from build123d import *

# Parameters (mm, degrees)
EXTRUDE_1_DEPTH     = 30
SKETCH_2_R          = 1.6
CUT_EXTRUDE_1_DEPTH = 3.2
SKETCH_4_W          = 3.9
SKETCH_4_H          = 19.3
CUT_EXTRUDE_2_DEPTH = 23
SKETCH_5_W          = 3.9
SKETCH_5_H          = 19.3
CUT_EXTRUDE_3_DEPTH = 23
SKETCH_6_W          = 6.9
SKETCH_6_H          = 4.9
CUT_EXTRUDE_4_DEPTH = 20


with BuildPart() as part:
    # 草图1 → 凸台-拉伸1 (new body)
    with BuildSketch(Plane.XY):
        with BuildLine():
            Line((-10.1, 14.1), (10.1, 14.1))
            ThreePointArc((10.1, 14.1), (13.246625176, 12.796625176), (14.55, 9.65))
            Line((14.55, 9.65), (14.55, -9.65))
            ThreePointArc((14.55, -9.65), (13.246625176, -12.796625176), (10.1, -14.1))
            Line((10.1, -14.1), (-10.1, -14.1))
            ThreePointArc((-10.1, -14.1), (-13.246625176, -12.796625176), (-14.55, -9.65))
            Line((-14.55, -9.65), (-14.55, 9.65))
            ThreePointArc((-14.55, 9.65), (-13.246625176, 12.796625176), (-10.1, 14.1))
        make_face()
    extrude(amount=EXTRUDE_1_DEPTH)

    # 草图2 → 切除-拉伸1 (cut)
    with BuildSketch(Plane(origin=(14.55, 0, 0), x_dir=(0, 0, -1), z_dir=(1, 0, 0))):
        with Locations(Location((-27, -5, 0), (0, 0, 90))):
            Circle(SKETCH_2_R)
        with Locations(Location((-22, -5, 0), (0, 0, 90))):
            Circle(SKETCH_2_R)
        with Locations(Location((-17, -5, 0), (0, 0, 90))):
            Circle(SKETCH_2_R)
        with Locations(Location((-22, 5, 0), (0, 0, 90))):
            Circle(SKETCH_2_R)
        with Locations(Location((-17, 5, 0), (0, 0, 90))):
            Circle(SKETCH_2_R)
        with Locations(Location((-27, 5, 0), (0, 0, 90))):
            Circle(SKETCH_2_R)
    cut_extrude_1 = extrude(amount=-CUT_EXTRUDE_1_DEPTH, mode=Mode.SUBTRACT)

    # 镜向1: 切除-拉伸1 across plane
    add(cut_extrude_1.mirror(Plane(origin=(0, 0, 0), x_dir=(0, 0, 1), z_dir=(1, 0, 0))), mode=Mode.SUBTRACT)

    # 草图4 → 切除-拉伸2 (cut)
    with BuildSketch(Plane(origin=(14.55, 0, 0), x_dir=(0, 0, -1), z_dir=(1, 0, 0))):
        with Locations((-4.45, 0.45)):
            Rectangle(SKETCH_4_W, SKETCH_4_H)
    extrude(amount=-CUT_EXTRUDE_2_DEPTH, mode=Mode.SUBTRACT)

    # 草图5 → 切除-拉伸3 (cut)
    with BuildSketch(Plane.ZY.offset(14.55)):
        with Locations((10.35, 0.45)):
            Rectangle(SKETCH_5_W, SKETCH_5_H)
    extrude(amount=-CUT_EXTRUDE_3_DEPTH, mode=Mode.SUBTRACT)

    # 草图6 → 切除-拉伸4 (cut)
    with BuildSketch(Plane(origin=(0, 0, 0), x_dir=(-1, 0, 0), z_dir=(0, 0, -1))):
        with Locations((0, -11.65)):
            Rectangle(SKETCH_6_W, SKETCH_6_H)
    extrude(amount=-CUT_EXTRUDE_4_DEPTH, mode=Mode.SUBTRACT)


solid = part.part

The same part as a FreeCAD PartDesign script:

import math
import FreeCAD as App
import Part
import Sketcher
Q = App.Units.Quantity

doc = App.newDocument("Part")
body = doc.addObject("PartDesign::Body", "Body")

sketch1 = body.newObject("Sketcher::SketchObject", "Sketch")
sketch1.AttachmentSupport = (doc.getObject("XY_Plane"), [""])
sketch1.MapMode = "FlatFace"
sketch1.addGeometry(Part.LineSegment(App.Vector(10.1, 14.1, 0), App.Vector(-10.1, 14.1, 0)), False)
sketch1.addGeometry(Part.ArcOfCircle(Part.Circle(App.Vector(-10.1, 9.6, 0), App.Vector(0, 0, 1), 4.5), math.radians(90), math.radians(180)), False)
sketch1.addGeometry(Part.LineSegment(App.Vector(-14.6, 9.7, 0), App.Vector(-14.6, -9.7, 0)), False)
sketch1.addGeometry(Part.ArcOfCircle(Part.Circle(App.Vector(-10.1, -9.6, 0), App.Vector(0, 0, 1), 4.5), math.radians(-180), math.radians(-90)), False)
sketch1.addGeometry(Part.LineSegment(App.Vector(-10.1, -14.1, 0), App.Vector(10.1, -14.1, 0)), False)
sketch1.addGeometry(Part.ArcOfCircle(Part.Circle(App.Vector(10.1, -9.6, 0), App.Vector(0, 0, 1), 4.5), math.radians(-90), math.radians(0)), False)
sketch1.addGeometry(Part.LineSegment(App.Vector(14.6, -9.7, 0), App.Vector(14.6, 9.7, 0)), False)
sketch1.addGeometry(Part.ArcOfCircle(Part.Circle(App.Vector(10.1, 9.6, 0), App.Vector(0, 0, 1), 4.5), math.radians(0), math.radians(90)), False)
sketch1.addConstraint(Sketcher.Constraint("Tangent", 0, 2, 1, 1))
sketch1.addConstraint(Sketcher.Constraint("Tangent", 1, 2, 2, 1))
sketch1.addConstraint(Sketcher.Constraint("Tangent", 2, 2, 3, 1))
sketch1.addConstraint(Sketcher.Constraint("Tangent", 3, 2, 4, 1))
sketch1.addConstraint(Sketcher.Constraint("Tangent", 4, 2, 5, 1))
sketch1.addConstraint(Sketcher.Constraint("Tangent", 5, 2, 6, 1))
sketch1.addConstraint(Sketcher.Constraint("Tangent", 6, 2, 7, 1))
sketch1.addConstraint(Sketcher.Constraint("Tangent", 7, 2, 0, 1))
sketch1.addConstraint(Sketcher.Constraint("Horizontal", 0))
sketch1.addConstraint(Sketcher.Constraint("Vertical", 2))
sketch1.addConstraint(Sketcher.Constraint("Horizontal", 4))
sketch1.addConstraint(Sketcher.Constraint("Vertical", 6))
sketch1.addConstraint(Sketcher.Constraint("Equal", 1, 3))
sketch1.addConstraint(Sketcher.Constraint("Equal", 3, 5))
sketch1.addConstraint(Sketcher.Constraint("Equal", 5, 7))
sketch1.addConstraint(Sketcher.Constraint("Symmetric", 1, 3, 5, 3, -1, 1))
sketch1.addConstraint(Sketcher.Constraint("Radius", 1, Q("4.45 mm")))
sketch1.addConstraint(Sketcher.Constraint("DistanceX", 0, 2, 0, 1, Q("20.2 mm")))
sketch1.addConstraint(Sketcher.Constraint("DistanceY", 2, 2, 2, 1, Q("19.3 mm")))
pad1 = body.newObject("PartDesign::Pad", "Pad")
pad1.Profile = sketch1
pad1.Length = 30

sketch2 = body.newObject("Sketcher::SketchObject", "Sketch001")
sketch2.AttachmentSupport = (doc.getObject("YZ_Plane"), [""])
sketch2.MapMode = "FlatFace"
sketch2.AttachmentOffset = App.Placement(App.Vector(0, 0, 14.55), App.Rotation())
sketch2.addGeometry(Part.Circle(App.Vector(-5, 27, 0), App.Vector(0, 0, 1), 1.6), False)
sketch2.addGeometry(Part.Circle(App.Vector(-5, 22, 0), App.Vector(0, 0, 1), 1.6), False)
sketch2.addGeometry(Part.Circle(App.Vector(-5, 17, 0), App.Vector(0, 0, 1), 1.6), False)
sketch2.addGeometry(Part.Circle(App.Vector(5, 22, 0), App.Vector(0, 0, 1), 1.6), False)
sketch2.addGeometry(Part.Circle(App.Vector(5, 17, 0), App.Vector(0, 0, 1), 1.6), False)
sketch2.addGeometry(Part.Circle(App.Vector(5, 27, 0), App.Vector(0, 0, 1), 1.6), False)
sketch2.addConstraint(Sketcher.Constraint("Equal", 0, 1))
sketch2.addConstraint(Sketcher.Constraint("Equal", 1, 2))
sketch2.addConstraint(Sketcher.Constraint("Equal", 2, 3))
sketch2.addConstraint(Sketcher.Constraint("Equal", 3, 4))
sketch2.addConstraint(Sketcher.Constraint("Equal", 4, 5))
sketch2.addConstraint(Sketcher.Constraint("Symmetric", 1, 3, 3, 3, -2))
sketch2.addConstraint(Sketcher.Constraint("Symmetric", 2, 3, 4, 3, -2))
sketch2.addConstraint(Sketcher.Constraint("Symmetric", 0, 3, 5, 3, -2))
sketch2.addConstraint(Sketcher.Constraint("Vertical", 0, 3, 1, 3))
sketch2.addConstraint(Sketcher.Constraint("Vertical", 1, 3, 2, 3))
sketch2.addConstraint(Sketcher.Constraint("Diameter", 0, Q("3.2 mm")))
sketch2.addConstraint(Sketcher.Constraint("DistanceX", 0, 3, -1, 1, Q("5 mm")))
sketch2.addConstraint(Sketcher.Constraint("DistanceY", -1, 1, 0, 3, Q("27 mm")))
sketch2.addConstraint(Sketcher.Constraint("DistanceY", -1, 1, 1, 3, Q("22 mm")))
sketch2.addConstraint(Sketcher.Constraint("DistanceY", -1, 1, 2, 3, Q("17 mm")))
pocket1 = body.newObject("PartDesign::Pocket", "Pocket")
pocket1.Profile = sketch2
pocket1.Length = 3.2
doc.recompute()

mirrored = body.newObject("PartDesign::Mirrored", "Mirrored")
mirrored.Originals = [pocket1]
mirrored.MirrorPlane = (doc.getObject("YZ_Plane"), [""])
body.Tip = mirrored

sketch3 = body.newObject("Sketcher::SketchObject", "Sketch002")
sketch3.AttachmentSupport = (doc.getObject("YZ_Plane"), [""])
sketch3.MapMode = "FlatFace"
sketch3.AttachmentOffset = App.Placement(App.Vector(0, 0, 14.55), App.Rotation())
sketch3.addGeometry(Part.LineSegment(App.Vector(10.1, 6.4, 0), App.Vector(-9.2, 6.4, 0)), False)
sketch3.addGeometry(Part.LineSegment(App.Vector(-9.2, 6.4, 0), App.Vector(-9.2, 2.5, 0)), False)
sketch3.addGeometry(Part.LineSegment(App.Vector(-9.2, 2.5, 0), App.Vector(10.1, 2.5, 0)), False)
sketch3.addGeometry(Part.LineSegment(App.Vector(10.1, 2.5, 0), App.Vector(10.1, 6.4, 0)), False)
sketch3.addConstraint(Sketcher.Constraint("Coincident", 0, 2, 1, 1))
sketch3.addConstraint(Sketcher.Constraint("Coincident", 1, 2, 2, 1))
sketch3.addConstraint(Sketcher.Constraint("Coincident", 2, 2, 3, 1))
sketch3.addConstraint(Sketcher.Constraint("Coincident", 3, 2, 0, 1))
sketch3.addConstraint(Sketcher.Constraint("Horizontal", 0))
sketch3.addConstraint(Sketcher.Constraint("Vertical", 1))
sketch3.addConstraint(Sketcher.Constraint("Horizontal", 2))
sketch3.addConstraint(Sketcher.Constraint("Vertical", 3))
sketch3.addConstraint(Sketcher.Constraint("DistanceX", 0, 2, 0, 1, Q("19.3 mm")))
sketch3.addConstraint(Sketcher.Constraint("DistanceY", 1, 2, 1, 1, Q("3.9 mm")))
sketch3.addConstraint(Sketcher.Constraint("DistanceX", 0, 2, -1, 1, Q("9.2 mm")))
sketch3.addConstraint(Sketcher.Constraint("DistanceY", -1, 1, 0, 2, Q("6.4 mm")))
pocket2 = body.newObject("PartDesign::Pocket", "Pocket001")
pocket2.Profile = sketch3
pocket2.Length = 23

sketch4 = body.newObject("Sketcher::SketchObject", "Sketch003")
sketch4.AttachmentSupport = (doc.getObject("YZ_Plane"), [""])
sketch4.MapMode = "FlatFace"
sketch4.AttachmentOffset = App.Placement(App.Vector(0, 0, -14.55), App.Rotation())
sketch4.addGeometry(Part.LineSegment(App.Vector(10.1, 8.4, 0), App.Vector(-9.2, 8.4, 0)), False)
sketch4.addGeometry(Part.LineSegment(App.Vector(-9.2, 8.4, 0), App.Vector(-9.2, 12.3, 0)), False)
sketch4.addGeometry(Part.LineSegment(App.Vector(-9.2, 12.3, 0), App.Vector(10.1, 12.3, 0)), False)
sketch4.addGeometry(Part.LineSegment(App.Vector(10.1, 12.3, 0), App.Vector(10.1, 8.4, 0)), False)
sketch4.addConstraint(Sketcher.Constraint("Coincident", 0, 2, 1, 1))
sketch4.addConstraint(Sketcher.Constraint("Coincident", 1, 2, 2, 1))
sketch4.addConstraint(Sketcher.Constraint("Coincident", 2, 2, 3, 1))
sketch4.addConstraint(Sketcher.Constraint("Coincident", 3, 2, 0, 1))
sketch4.addConstraint(Sketcher.Constraint("Horizontal", 0))
sketch4.addConstraint(Sketcher.Constraint("Vertical", 1))
sketch4.addConstraint(Sketcher.Constraint("Horizontal", 2))
sketch4.addConstraint(Sketcher.Constraint("Vertical", 3))
sketch4.addConstraint(Sketcher.Constraint("DistanceX", 0, 2, 0, 1, Q("19.3 mm")))
sketch4.addConstraint(Sketcher.Constraint("DistanceY", 1, 1, 1, 2, Q("3.9 mm")))
sketch4.addConstraint(Sketcher.Constraint("DistanceX", 0, 2, -1, 1, Q("9.2 mm")))
sketch4.addConstraint(Sketcher.Constraint("DistanceY", -1, 1, 0, 2, Q("8.4 mm")))
pocket3 = body.newObject("PartDesign::Pocket", "Pocket002")
pocket3.Profile = sketch4
pocket3.Length = 23
pocket3.Reversed = True

sketch5 = body.newObject("Sketcher::SketchObject", "Sketch004")
sketch5.AttachmentSupport = (doc.getObject("XY_Plane"), [""])
sketch5.MapMode = "FlatFace"
sketch5.addGeometry(Part.LineSegment(App.Vector(3.5, -9.2, 0), App.Vector(3.5, -14.1, 0)), False)
sketch5.addGeometry(Part.LineSegment(App.Vector(3.5, -14.1, 0), App.Vector(-3.5, -14.1, 0)), False)
sketch5.addGeometry(Part.LineSegment(App.Vector(-3.5, -14.1, 0), App.Vector(-3.5, -9.2, 0)), False)
sketch5.addGeometry(Part.LineSegment(App.Vector(-3.5, -9.2, 0), App.Vector(3.5, -9.2, 0)), False)
sketch5.addConstraint(Sketcher.Constraint("Coincident", 0, 2, 1, 1))
sketch5.addConstraint(Sketcher.Constraint("Coincident", 1, 2, 2, 1))
sketch5.addConstraint(Sketcher.Constraint("Coincident", 2, 2, 3, 1))
sketch5.addConstraint(Sketcher.Constraint("Coincident", 3, 2, 0, 1))
sketch5.addConstraint(Sketcher.Constraint("Vertical", 0))
sketch5.addConstraint(Sketcher.Constraint("Horizontal", 1))
sketch5.addConstraint(Sketcher.Constraint("Vertical", 2))
sketch5.addConstraint(Sketcher.Constraint("Horizontal", 3))
sketch5.addConstraint(Sketcher.Constraint("DistanceX", 1, 2, 1, 1, Q("6.9 mm")))
sketch5.addConstraint(Sketcher.Constraint("DistanceY", 0, 2, 0, 1, Q("4.9 mm")))
sketch5.addConstraint(Sketcher.Constraint("DistanceY", 0, 2, -1, 1, Q("14.1 mm")))
sketch5.addConstraint(Sketcher.Constraint("DistanceX", -1, 1, 0, 2, Q("3.45 mm")))
pocket4 = body.newObject("PartDesign::Pocket", "Pocket003")
pocket4.Profile = sketch5
pocket4.Length = 20
pocket4.Reversed = True

doc.recompute()
